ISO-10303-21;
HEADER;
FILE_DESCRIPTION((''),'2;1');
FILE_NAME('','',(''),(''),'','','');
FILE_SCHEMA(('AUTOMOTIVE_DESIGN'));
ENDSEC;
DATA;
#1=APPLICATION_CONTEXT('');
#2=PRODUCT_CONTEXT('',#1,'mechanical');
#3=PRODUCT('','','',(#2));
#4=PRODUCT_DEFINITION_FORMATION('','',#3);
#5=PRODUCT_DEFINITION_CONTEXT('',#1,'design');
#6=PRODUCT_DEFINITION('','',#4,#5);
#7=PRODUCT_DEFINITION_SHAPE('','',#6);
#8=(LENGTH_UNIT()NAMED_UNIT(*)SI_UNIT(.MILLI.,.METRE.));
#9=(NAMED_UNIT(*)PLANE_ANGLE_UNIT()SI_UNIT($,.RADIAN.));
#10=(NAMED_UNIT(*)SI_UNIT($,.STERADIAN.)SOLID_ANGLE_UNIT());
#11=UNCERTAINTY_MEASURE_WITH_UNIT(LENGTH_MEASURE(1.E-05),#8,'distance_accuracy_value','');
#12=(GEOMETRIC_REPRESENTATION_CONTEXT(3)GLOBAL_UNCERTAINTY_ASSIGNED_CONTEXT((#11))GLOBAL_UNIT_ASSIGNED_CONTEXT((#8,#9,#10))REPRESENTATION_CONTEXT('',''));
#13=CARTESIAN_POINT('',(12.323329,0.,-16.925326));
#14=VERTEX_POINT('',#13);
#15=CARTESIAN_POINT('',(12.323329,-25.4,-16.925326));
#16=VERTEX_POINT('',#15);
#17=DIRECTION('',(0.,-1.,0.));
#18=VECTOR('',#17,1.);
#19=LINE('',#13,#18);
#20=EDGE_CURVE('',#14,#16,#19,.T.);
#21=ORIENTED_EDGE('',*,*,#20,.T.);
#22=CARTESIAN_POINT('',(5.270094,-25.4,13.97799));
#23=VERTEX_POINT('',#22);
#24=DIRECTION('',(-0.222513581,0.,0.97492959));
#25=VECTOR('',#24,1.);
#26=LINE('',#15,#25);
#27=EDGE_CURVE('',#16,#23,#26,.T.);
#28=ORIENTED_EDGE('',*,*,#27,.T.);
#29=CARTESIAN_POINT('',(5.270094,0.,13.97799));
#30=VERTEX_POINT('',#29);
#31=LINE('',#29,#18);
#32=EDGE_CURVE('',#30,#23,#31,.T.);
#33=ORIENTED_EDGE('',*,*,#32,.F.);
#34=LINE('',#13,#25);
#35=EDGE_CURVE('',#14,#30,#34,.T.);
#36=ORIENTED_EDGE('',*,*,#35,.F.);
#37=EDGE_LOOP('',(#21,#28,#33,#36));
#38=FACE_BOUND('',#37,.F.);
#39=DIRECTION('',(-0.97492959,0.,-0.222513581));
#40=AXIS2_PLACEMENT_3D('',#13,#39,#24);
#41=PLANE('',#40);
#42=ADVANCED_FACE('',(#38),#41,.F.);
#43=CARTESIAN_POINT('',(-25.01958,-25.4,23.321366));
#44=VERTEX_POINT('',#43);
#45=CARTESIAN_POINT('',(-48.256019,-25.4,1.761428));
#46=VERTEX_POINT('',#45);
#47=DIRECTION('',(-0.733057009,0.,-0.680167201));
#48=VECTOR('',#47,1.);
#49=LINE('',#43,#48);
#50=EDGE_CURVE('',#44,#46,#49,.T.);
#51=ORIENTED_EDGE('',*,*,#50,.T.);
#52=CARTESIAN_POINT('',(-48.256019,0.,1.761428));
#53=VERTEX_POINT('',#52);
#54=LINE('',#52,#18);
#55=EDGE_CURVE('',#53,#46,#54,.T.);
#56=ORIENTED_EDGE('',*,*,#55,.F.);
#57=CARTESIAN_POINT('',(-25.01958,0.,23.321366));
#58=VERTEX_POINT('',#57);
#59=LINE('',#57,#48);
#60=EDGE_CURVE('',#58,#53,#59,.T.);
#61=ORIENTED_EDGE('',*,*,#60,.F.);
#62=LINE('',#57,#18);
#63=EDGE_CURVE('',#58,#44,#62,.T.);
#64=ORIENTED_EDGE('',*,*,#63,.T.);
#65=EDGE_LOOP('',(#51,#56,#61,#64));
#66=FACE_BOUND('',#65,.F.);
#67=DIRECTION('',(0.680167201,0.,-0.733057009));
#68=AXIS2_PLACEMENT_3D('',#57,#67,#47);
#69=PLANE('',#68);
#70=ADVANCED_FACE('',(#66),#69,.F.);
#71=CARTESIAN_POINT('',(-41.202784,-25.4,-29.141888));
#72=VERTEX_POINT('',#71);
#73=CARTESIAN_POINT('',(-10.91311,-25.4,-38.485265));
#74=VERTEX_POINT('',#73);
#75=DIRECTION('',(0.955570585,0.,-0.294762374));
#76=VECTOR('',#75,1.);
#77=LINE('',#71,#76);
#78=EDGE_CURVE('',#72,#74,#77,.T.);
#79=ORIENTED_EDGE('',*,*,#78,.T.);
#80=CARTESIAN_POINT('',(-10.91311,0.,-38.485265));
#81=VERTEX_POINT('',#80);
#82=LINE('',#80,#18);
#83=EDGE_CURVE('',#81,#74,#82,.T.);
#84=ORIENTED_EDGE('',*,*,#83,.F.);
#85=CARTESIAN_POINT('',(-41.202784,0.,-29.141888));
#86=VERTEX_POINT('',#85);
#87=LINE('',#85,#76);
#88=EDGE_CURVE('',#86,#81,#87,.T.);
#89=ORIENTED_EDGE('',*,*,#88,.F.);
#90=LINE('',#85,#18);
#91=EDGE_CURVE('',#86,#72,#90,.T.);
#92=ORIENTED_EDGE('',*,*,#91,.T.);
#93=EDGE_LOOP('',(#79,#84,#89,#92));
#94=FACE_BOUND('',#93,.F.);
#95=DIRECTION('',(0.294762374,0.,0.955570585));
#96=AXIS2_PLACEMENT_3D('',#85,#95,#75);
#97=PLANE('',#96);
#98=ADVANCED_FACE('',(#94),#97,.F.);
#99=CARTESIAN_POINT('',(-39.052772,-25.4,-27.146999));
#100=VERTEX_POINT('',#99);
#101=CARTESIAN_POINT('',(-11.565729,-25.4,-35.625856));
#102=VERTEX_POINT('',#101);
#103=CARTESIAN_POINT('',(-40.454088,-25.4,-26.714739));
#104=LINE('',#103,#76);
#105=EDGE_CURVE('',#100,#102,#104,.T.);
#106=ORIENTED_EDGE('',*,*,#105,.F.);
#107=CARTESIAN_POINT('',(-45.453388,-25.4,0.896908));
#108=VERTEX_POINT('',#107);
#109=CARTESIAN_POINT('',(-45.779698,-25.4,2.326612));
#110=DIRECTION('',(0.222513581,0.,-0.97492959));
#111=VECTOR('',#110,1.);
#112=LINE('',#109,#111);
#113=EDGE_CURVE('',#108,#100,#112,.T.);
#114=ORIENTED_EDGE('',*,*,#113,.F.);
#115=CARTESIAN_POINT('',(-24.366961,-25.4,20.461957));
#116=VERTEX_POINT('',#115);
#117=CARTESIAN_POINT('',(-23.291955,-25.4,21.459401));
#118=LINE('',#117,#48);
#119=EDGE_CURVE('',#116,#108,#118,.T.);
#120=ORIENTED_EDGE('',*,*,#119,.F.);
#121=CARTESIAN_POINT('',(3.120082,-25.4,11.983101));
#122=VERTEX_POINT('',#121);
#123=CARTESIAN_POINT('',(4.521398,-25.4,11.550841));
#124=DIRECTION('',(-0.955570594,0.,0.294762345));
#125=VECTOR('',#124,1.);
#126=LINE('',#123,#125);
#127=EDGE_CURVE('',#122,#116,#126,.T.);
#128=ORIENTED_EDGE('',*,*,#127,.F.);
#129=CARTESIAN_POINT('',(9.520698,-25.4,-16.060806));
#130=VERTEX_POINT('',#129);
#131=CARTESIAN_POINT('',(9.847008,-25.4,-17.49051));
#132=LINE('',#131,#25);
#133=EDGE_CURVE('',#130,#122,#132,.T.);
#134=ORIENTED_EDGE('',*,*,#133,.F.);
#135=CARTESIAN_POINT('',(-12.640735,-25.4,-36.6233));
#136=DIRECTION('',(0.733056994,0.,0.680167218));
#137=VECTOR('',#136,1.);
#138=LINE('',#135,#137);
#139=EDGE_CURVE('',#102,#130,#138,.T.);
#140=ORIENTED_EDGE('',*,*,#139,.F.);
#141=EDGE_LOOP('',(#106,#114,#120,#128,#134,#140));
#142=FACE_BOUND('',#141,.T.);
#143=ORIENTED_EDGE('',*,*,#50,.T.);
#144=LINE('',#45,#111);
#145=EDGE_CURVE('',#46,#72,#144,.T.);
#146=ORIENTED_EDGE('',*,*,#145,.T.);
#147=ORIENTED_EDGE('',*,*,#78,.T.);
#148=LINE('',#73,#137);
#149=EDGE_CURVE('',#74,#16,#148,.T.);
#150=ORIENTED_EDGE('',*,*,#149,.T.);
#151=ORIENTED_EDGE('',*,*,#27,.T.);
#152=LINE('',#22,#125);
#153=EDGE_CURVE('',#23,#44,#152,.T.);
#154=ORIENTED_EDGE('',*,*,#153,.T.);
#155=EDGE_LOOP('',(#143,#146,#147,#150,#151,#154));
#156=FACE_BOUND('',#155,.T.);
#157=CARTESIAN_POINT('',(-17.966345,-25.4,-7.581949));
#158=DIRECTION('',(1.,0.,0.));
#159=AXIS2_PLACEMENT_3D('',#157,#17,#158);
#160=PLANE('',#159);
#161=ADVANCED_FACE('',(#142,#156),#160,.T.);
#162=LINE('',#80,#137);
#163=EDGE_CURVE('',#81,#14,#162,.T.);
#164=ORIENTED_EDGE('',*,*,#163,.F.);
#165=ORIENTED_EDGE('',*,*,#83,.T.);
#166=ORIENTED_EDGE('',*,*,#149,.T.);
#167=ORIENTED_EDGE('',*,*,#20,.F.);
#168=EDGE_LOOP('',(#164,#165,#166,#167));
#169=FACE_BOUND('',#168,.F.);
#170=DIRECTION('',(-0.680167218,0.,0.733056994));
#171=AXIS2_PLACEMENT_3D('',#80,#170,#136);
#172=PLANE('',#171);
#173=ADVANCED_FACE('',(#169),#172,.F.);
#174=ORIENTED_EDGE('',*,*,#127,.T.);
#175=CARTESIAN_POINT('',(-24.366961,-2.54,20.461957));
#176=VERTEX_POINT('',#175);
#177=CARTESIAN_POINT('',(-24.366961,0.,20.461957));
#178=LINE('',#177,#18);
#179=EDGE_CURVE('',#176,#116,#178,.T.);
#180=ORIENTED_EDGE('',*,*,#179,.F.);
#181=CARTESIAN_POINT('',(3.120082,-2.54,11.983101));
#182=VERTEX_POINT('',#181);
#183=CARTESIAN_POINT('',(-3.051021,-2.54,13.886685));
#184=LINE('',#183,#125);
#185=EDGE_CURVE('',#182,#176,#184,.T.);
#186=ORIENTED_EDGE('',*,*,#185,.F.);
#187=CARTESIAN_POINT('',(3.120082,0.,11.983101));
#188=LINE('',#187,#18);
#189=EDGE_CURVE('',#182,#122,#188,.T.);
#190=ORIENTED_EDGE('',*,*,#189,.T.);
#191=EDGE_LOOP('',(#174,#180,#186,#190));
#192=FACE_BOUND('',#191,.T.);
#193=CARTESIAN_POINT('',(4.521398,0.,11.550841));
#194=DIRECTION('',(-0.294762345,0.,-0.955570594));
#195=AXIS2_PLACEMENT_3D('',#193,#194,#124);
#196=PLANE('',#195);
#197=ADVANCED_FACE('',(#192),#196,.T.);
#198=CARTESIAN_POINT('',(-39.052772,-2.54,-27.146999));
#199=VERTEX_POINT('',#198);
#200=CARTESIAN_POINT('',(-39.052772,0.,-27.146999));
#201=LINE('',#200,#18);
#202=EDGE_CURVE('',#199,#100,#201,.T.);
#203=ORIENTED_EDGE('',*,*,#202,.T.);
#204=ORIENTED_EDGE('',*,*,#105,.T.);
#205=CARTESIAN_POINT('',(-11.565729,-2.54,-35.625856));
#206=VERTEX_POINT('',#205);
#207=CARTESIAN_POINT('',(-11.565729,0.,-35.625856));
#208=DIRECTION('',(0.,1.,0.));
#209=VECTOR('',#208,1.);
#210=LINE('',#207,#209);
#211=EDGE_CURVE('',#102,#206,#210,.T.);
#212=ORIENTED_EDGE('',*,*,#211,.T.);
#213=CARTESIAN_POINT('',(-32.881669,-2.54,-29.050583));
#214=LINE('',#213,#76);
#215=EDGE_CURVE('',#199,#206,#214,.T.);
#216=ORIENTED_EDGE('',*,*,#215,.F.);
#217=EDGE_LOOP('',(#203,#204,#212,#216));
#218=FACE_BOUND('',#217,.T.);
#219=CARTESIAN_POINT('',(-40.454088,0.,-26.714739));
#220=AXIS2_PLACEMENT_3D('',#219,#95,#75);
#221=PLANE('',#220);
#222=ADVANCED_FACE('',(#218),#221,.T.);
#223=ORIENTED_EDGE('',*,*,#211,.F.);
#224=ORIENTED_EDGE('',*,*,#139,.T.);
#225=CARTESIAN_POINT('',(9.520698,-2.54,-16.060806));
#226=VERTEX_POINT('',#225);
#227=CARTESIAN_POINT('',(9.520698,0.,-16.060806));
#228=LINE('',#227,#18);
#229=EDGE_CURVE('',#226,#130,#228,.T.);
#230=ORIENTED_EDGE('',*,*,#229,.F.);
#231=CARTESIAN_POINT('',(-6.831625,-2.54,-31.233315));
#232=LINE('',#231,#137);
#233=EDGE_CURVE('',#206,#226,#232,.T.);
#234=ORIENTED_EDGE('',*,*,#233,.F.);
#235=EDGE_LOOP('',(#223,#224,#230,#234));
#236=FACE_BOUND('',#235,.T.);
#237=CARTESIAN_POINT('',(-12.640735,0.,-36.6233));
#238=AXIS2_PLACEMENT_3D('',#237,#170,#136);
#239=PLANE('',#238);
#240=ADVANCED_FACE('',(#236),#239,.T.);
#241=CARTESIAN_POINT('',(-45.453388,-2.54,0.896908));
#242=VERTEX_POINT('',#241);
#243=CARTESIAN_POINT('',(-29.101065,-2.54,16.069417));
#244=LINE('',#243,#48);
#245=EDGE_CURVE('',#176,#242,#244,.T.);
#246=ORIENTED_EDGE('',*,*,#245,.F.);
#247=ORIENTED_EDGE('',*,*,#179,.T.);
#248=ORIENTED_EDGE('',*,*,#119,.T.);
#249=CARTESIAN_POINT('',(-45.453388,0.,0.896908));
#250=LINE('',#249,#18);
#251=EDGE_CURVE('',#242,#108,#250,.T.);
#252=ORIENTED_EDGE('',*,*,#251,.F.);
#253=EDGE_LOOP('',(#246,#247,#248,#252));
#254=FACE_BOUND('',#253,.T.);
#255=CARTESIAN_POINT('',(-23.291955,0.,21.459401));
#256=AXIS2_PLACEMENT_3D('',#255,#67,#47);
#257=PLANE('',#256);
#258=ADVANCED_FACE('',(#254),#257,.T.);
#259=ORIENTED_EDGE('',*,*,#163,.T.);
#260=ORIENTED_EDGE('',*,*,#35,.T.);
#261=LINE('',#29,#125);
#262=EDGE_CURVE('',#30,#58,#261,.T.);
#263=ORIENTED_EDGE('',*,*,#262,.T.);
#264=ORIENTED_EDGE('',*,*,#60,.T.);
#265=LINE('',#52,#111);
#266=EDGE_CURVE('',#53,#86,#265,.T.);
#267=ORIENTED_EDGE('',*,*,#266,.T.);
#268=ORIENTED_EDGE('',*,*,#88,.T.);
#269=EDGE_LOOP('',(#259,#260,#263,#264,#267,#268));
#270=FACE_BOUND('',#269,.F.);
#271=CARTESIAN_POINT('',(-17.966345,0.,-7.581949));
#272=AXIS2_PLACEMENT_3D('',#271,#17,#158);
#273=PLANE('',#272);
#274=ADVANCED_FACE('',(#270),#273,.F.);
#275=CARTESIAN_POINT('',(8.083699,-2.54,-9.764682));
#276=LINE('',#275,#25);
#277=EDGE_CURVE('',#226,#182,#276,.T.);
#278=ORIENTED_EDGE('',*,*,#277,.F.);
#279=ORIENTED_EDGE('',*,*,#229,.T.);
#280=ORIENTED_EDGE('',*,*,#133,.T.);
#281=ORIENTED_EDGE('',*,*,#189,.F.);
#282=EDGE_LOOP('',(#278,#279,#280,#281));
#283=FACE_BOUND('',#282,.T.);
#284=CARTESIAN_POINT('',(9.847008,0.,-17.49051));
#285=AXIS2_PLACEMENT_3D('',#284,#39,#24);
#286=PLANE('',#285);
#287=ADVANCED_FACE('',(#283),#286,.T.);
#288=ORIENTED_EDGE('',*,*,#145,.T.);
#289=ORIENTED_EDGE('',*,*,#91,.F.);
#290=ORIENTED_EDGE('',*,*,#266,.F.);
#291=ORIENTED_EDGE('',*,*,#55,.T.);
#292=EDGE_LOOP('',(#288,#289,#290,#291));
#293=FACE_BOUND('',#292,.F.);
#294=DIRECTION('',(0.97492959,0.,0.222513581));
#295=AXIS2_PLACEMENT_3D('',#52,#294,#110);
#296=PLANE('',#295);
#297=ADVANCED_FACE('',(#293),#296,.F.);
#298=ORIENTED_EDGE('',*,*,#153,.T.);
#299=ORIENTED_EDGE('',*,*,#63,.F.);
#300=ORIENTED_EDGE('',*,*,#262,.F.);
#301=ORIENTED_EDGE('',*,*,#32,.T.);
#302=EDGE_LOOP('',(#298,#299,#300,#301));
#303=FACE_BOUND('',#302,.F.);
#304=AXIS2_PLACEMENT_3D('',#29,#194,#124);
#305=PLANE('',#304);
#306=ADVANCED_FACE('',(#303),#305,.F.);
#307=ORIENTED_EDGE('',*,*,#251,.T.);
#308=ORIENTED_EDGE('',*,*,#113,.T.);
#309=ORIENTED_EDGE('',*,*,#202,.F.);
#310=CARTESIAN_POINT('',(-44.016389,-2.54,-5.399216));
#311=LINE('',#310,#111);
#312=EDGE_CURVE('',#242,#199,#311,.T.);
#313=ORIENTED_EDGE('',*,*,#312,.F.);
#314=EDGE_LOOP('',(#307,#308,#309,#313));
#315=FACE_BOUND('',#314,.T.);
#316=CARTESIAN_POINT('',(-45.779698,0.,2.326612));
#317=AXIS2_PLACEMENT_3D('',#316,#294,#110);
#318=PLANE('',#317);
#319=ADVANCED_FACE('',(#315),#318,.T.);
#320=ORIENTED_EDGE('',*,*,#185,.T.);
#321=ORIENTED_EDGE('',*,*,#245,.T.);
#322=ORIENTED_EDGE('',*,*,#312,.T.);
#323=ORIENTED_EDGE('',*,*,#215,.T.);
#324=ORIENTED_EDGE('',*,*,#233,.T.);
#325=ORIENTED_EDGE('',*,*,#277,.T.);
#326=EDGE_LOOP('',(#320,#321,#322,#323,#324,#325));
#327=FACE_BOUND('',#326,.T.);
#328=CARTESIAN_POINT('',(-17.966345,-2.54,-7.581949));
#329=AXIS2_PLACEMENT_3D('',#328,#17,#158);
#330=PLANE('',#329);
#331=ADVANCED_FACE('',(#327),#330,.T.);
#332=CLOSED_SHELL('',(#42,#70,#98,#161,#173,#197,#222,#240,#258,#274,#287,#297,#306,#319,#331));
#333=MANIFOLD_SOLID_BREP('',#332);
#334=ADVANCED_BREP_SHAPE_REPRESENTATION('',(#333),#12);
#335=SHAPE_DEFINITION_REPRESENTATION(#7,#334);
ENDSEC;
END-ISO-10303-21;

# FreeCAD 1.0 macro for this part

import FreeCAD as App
import Part
import Sketcher
from FreeCAD import Vector
Q = App.Units.Quantity


def faces_at(feature, points):
    """Names of the faces that lie closest to the given points."""
    faces = feature.Shape.Faces
    near = lambda p: min(range(len(faces)), key=lambda i: faces[i].distToShape(Part.Vertex(*p))[0])
    return sorted({f"Face{near(p) + 1}" for p in points})

doc = App.newDocument("Part")
body = doc.addObject("PartDesign::Body", "Body")

sketch1 = body.newObject("Sketcher::SketchObject", "Sketch")
sketch1.AttachmentSupport = (doc.getObject("XZ_Plane"), [""])
sketch1.MapMode = "FlatFace"
sketch1.addGeometry([
    Part.LineSegment(Vector(-11, -38, 0), Vector(12, -17, 0)),
    Part.LineSegment(Vector(12, -17, 0), Vector(5, 14, 0)),
    Part.LineSegment(Vector(5, 14, 0), Vector(-25, 23, 0)),
    Part.LineSegment(Vector(-25, 23, 0), Vector(-48, 2, 0)),
    Part.LineSegment(Vector(-48, 2, 0), Vector(-41, -29, 0)),
    Part.LineSegment(Vector(-41, -29, 0), Vector(-11, -38, 0)),
], False)
sketch1.addConstraint([
    Sketcher.Constraint("Coincident", 0, 2, 1, 1),
    Sketcher.Constraint("Coincident", 1, 2, 2, 1),
    Sketcher.Constraint("Coincident", 2, 2, 3, 1),
    Sketcher.Constraint("Coincident", 3, 2, 4, 1),
    Sketcher.Constraint("Coincident", 4, 2, 5, 1),
    Sketcher.Constraint("Coincident", 5, 2, 0, 1),
    Sketcher.Constraint("Parallel", 0, 3),
    Sketcher.Constraint("Parallel", 1, 4),
    Sketcher.Constraint("Parallel", 2, 5),
    Sketcher.Constraint("Equal", 0, 1),
    Sketcher.Constraint("Equal", 1, 2),
    Sketcher.Constraint("Equal", 2, 3),
    Sketcher.Constraint("DistanceX", -1, 1, 0, 2, Q("12.323329 mm")),
    Sketcher.Constraint("DistanceY", -1, 1, 1, 2, Q("13.97799 mm")),
    Sketcher.Constraint("DistanceX", 2, 2, -1, 1, Q("25.01958 mm")),
    Sketcher.Constraint("DistanceX", 3, 2, -1, 1, Q("48.256019 mm")),
    Sketcher.Constraint("DistanceY", 4, 2, -1, 1, Q("29.141888 mm")),
    Sketcher.Constraint("DistanceY", 0, 2, 2, 2, Q("40.246692 mm")),
])
pad1 = body.newObject("PartDesign::Pad", "Pad")
pad1.Profile = sketch1
pad1.Length = Q("1 in")
doc.recompute()

thickness = body.newObject("PartDesign::Thickness", "Thickness")
thickness.Base = (pad1, faces_at(pad1, [(-17.966, -25.4, -7.582)]))
thickness.Value = Q("0.1 in")
thickness.Reversed = True
thickness.Join = "Arc"

doc.recompute()
